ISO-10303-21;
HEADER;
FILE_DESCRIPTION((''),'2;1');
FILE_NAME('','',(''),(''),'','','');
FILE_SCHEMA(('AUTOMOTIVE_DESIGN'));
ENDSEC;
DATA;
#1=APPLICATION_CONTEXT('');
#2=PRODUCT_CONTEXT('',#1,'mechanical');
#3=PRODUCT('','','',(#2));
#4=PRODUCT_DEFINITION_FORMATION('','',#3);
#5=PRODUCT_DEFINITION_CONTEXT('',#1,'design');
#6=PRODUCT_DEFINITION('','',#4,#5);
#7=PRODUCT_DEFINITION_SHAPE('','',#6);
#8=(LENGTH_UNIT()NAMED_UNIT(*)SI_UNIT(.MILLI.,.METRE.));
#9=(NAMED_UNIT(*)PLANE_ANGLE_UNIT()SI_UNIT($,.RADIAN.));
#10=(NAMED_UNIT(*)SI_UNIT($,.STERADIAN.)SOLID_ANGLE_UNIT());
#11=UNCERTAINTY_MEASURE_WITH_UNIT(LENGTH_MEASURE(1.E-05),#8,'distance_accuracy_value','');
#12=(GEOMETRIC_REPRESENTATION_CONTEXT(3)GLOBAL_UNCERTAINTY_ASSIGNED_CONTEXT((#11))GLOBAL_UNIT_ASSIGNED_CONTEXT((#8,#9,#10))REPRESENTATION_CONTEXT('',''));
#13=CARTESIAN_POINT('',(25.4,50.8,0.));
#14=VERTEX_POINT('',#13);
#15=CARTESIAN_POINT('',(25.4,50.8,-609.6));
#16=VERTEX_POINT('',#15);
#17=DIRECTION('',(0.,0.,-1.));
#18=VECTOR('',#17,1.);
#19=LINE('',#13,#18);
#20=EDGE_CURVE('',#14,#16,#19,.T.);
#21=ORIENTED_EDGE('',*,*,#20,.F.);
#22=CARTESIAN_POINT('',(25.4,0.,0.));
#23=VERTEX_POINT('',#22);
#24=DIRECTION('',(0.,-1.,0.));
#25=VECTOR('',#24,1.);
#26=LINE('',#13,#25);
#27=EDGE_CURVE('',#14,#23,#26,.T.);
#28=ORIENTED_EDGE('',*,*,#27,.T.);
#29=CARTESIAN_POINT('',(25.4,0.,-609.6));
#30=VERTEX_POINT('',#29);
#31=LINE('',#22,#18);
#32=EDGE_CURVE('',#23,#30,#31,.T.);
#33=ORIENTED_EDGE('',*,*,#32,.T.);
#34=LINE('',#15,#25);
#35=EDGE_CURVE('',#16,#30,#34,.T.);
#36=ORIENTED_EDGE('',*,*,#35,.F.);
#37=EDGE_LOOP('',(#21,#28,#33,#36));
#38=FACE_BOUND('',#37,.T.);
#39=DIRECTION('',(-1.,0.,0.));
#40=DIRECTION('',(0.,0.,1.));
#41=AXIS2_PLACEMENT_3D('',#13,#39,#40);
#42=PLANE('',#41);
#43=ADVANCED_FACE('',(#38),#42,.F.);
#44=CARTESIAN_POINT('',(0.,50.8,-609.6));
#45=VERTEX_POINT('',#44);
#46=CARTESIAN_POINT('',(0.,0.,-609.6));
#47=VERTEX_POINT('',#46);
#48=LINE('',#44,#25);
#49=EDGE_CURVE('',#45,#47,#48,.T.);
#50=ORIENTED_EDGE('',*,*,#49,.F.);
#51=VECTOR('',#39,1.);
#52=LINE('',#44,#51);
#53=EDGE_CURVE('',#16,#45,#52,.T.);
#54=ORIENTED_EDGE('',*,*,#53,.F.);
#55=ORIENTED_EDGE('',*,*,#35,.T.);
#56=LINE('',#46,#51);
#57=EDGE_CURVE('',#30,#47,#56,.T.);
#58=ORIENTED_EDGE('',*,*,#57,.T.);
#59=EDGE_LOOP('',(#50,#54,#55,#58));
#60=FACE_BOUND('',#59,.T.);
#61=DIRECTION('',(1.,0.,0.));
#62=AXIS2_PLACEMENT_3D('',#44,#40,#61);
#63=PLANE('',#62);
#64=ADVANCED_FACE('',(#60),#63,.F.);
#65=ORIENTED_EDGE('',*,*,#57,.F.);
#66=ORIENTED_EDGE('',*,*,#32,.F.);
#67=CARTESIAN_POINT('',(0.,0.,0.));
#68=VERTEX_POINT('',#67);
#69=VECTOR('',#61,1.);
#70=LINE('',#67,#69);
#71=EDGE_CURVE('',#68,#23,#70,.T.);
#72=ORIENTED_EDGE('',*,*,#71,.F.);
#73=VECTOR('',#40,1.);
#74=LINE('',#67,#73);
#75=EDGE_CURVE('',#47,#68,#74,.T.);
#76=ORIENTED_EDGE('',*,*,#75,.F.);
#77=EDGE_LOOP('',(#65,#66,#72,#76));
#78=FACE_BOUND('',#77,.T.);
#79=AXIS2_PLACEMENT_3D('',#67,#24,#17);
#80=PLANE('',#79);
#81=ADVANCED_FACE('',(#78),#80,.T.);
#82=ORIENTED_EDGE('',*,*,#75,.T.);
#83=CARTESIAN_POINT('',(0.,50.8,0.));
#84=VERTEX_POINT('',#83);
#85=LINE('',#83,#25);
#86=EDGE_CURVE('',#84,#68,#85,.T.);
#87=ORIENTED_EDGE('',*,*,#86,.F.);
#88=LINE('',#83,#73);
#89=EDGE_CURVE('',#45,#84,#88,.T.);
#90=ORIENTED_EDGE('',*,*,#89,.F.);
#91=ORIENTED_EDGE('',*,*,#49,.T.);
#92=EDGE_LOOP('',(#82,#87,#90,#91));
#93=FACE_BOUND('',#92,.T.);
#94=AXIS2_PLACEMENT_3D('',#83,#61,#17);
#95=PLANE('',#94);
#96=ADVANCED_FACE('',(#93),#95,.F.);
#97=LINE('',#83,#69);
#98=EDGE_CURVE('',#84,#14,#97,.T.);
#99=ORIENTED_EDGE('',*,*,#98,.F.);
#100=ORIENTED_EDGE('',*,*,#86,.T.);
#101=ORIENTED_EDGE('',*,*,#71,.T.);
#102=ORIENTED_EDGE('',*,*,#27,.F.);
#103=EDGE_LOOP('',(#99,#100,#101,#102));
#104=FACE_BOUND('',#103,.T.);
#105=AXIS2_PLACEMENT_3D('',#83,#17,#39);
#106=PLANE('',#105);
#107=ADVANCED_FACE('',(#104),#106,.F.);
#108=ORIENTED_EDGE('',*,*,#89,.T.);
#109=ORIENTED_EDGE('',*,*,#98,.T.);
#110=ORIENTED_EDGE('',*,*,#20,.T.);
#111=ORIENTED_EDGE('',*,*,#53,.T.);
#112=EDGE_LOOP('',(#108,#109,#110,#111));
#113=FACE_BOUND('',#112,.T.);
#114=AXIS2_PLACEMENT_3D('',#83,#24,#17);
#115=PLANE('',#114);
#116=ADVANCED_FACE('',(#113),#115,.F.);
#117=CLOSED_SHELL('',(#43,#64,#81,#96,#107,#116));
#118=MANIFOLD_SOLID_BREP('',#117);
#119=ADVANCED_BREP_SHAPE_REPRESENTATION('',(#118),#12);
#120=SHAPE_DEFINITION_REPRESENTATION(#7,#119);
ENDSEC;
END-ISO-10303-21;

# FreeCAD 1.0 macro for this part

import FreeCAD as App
import Part
import Sketcher
Q = App.Units.Quantity

doc = App.newDocument("Part")
params = doc.addObject("Spreadsheet::Sheet", "Params")
for row, (alias, value) in enumerate([
    ("sketch1_width", "1 in"),
    ("sketch1_height", "24 in"),
    ("pad1_length", "2 in"),
], start=1):
    params.set(f"A{row}", alias)
    params.set(f"B{row}", "=" + value)
    params.setAlias(f"B{row}", alias)

body = doc.addObject("PartDesign::Body", "Body")

# Sketch on XZ plane
sketch1 = doc.addObject("Sketcher::SketchObject", "Sketch")
body.addObject(sketch1)
sketch1.AttachmentSupport = (doc.XZ_Plane, [""])
sketch1.MapMode = "FlatFace"
sketch1.addGeometry([
    Part.LineSegment(App.Vector(0, -609.6, 0), App.Vector(0, 0, 0)),
    Part.LineSegment(App.Vector(0, 0, 0), App.Vector(25.4, 0, 0)),
    Part.LineSegment(App.Vector(25.4, 0, 0), App.Vector(25.4, -609.6, 0)),
    Part.LineSegment(App.Vector(25.4, -609.6, 0), App.Vector(0, -609.6, 0)),
], False)
sketch1.addConstraint([
    Sketcher.Constraint("Coincident", 0, 2, 1, 1),
    Sketcher.Constraint("Coincident", 1, 2, 2, 1),
    Sketcher.Constraint("Coincident", 2, 2, 3, 1),
    Sketcher.Constraint("Coincident", 3, 2, 0, 1),
    Sketcher.Constraint("Vertical", 0),
    Sketcher.Constraint("Horizontal", 1),
    Sketcher.Constraint("Vertical", 2),
    Sketcher.Constraint("Horizontal", 3),
    Sketcher.Constraint("Coincident", 0, 2, -1, 1),
    Sketcher.Constraint("DistanceX", 1, 1, 1, 2, Q("1 in")),
    Sketcher.Constraint("DistanceY", 0, 1, 0, 2, Q("24 in")),
])
sketch1.setExpression("Constraints[9]", "Params.sketch1_width")
sketch1.setExpression("Constraints[10]", "Params.sketch1_height")
pad1 = doc.addObject("PartDesign::Pad", "Pad")
body.addObject(pad1)
pad1.Profile = sketch1
pad1.setExpression("Length", "Params.pad1_length")
pad1.Reversed = True

doc.recompute()
